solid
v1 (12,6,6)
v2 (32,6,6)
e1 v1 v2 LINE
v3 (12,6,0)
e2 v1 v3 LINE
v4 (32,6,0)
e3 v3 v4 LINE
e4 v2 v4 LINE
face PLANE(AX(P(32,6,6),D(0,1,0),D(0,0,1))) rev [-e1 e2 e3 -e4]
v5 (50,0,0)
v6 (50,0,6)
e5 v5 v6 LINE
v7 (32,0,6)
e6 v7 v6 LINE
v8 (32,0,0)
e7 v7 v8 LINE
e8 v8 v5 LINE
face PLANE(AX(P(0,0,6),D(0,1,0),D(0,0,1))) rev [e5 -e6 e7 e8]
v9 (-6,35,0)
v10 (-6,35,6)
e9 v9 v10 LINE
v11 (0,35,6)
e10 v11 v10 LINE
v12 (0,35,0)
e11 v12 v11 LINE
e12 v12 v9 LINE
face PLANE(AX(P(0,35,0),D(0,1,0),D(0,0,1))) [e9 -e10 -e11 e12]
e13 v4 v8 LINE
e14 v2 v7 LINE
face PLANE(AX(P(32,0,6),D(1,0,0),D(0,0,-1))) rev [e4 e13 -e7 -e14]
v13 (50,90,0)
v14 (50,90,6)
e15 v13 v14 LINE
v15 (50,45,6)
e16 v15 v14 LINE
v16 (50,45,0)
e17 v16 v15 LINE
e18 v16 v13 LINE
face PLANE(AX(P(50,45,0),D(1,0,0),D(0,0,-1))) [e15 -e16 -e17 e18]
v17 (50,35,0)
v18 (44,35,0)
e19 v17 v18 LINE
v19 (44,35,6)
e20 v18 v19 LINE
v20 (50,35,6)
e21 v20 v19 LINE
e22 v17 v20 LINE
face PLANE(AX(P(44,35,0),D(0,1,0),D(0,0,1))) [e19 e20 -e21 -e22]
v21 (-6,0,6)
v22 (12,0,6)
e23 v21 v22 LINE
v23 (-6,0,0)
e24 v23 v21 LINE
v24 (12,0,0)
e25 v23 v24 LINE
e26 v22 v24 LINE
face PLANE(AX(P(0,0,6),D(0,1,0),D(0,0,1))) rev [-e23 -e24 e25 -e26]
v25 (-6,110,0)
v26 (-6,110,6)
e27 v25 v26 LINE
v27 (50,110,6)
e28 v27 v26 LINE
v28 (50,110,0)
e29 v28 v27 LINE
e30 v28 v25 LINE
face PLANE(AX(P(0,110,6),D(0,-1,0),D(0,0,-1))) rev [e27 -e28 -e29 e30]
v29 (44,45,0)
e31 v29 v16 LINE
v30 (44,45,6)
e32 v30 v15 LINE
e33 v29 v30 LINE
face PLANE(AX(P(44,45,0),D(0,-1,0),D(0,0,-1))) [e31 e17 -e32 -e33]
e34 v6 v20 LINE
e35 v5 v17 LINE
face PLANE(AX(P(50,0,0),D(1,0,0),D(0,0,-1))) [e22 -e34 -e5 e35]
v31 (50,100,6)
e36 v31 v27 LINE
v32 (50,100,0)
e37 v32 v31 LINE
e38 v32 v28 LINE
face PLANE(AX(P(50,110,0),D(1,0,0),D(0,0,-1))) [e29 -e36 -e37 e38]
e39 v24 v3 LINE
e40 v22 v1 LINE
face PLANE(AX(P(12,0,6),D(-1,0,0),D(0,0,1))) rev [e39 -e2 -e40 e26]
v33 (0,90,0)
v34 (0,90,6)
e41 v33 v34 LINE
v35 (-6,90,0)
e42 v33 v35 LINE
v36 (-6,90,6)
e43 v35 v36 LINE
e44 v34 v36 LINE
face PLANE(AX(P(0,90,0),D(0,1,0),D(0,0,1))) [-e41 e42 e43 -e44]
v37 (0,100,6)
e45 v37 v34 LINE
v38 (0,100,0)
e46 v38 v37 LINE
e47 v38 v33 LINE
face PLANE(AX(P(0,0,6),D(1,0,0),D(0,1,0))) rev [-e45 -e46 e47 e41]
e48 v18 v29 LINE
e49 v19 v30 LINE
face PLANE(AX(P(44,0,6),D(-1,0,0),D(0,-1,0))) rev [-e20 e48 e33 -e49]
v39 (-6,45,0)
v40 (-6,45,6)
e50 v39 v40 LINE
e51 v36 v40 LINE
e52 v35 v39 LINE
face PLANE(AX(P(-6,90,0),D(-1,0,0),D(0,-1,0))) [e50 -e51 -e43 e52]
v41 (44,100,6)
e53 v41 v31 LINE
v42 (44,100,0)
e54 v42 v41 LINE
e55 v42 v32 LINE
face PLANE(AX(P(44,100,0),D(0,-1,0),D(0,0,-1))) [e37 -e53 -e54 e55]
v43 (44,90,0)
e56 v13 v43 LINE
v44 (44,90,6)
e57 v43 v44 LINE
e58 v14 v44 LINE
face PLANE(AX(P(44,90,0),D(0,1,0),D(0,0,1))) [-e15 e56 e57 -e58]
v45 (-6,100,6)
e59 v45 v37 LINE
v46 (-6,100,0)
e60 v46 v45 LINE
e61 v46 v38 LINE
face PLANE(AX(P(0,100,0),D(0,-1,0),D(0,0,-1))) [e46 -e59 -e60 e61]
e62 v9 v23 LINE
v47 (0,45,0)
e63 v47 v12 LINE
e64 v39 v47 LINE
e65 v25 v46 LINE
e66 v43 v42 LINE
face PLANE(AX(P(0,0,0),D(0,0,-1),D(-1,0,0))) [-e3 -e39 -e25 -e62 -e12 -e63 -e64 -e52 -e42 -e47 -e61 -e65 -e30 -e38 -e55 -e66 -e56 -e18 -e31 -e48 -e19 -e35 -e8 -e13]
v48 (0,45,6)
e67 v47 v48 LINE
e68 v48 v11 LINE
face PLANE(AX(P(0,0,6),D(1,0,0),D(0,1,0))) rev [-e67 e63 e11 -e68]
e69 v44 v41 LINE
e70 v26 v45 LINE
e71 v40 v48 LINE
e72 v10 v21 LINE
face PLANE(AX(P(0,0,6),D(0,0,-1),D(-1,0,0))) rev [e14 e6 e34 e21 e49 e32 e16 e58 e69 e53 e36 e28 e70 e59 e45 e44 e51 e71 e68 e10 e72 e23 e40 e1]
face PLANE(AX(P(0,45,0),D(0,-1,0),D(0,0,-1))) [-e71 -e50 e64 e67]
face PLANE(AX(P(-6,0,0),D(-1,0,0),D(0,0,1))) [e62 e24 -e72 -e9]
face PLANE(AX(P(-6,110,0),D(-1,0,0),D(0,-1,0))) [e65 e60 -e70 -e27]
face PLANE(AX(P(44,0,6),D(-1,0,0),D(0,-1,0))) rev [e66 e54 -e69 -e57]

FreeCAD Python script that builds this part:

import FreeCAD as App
import Part
import Sketcher
Q = App.Units.Quantity

doc = App.newDocument("Part")
body = doc.addObject("PartDesign::Body", "Body")

# Sketch on XY plane
sketch1 = body.newObject("Sketcher::SketchObject", "Sketch")
sketch1.AttachmentSupport = (doc.getObject("XY_Plane"), [""])
sketch1.MapMode = "FlatFace"
sketch1.addGeometry([
    Part.LineSegment(App.Vector(0, 110, 0), App.Vector(0, 0, 0)),
    Part.LineSegment(App.Vector(0, 0, 0), App.Vector(44, 0, 0)),
    Part.LineSegment(App.Vector(44, 0, 0), App.Vector(44, 110, 0)),
    Part.LineSegment(App.Vector(44, 110, 0), App.Vector(0, 110, 0)),
], False)
sketch1.addConstraint([
    Sketcher.Constraint("Coincident", 0, 2, 1, 1),
    Sketcher.Constraint("Coincident", 1, 2, 2, 1),
    Sketcher.Constraint("Coincident", 2, 2, 3, 1),
    Sketcher.Constraint("Coincident", 3, 2, 0, 1),
    Sketcher.Constraint("Vertical", 0),
    Sketcher.Constraint("Horizontal", 1),
    Sketcher.Constraint("Vertical", 2),
    Sketcher.Constraint("Horizontal", 3),
    Sketcher.Constraint("Coincident", 0, 2, -1, 1),
    Sketcher.Constraint("DistanceX", 1, 1, 1, 2, Q("44 mm")),
    Sketcher.Constraint("DistanceY", 0, 2, 0, 1, Q("110 mm")),
])
pad1 = body.newObject("PartDesign::Pad", "Pad")
pad1.Profile = sketch1
pad1.Length = 6

# Sketch on XY plane
sketch2 = body.newObject("Sketcher::SketchObject", "Sketch001")
sketch2.AttachmentSupport = (doc.getObject("XY_Plane"), [""])
sketch2.MapMode = "FlatFace"
sketch2.AttachmentOffset = App.Placement(App.Vector(0, 0, 6), App.Rotation())
sketch2.addGeometry([
    Part.LineSegment(App.Vector(-6, 110, 0), App.Vector(-6, 100, 0)),  # 0
    Part.LineSegment(App.Vector(-6, 100, 0), App.Vector(0, 100, 0)),  # 1
    Part.LineSegment(App.Vector(0, 100, 0), App.Vector(0, 110, 0)),  # 2
    Part.LineSegment(App.Vector(0, 110, 0), App.Vector(-6, 110, 0)),  # 3
    Part.LineSegment(App.Vector(-6, 90, 0), App.Vector(-6, 45, 0)),  # 4
    Part.LineSegment(App.Vector(-6, 45, 0), App.Vector(0, 45, 0)),  # 5
    Part.LineSegment(App.Vector(0, 45, 0), App.Vector(0, 90, 0)),  # 6
    Part.LineSegment(App.Vector(0, 90, 0), App.Vector(-6, 90, 0)),  # 7
    Part.LineSegment(App.Vector(-6, 35, 0), App.Vector(-6, 0, 0)),  # 8
    Part.LineSegment(App.Vector(-6, 0, 0), App.Vector(0, 0, 0)),  # 9
    Part.LineSegment(App.Vector(0, 0, 0), App.Vector(0, 35, 0)),  # 10
    Part.LineSegment(App.Vector(0, 35, 0), App.Vector(-6, 35, 0)),  # 11
    Part.LineSegment(App.Vector(44, 35, 0), App.Vector(44, 0, 0)),  # 12
    Part.LineSegment(App.Vector(44, 0, 0), App.Vector(50, 0, 0)),  # 13
    Part.LineSegment(App.Vector(50, 0, 0), App.Vector(50, 35, 0)),  # 14
    Part.LineSegment(App.Vector(50, 35, 0), App.Vector(44, 35, 0)),  # 15
    Part.LineSegment(App.Vector(44, 90, 0), App.Vector(44, 45, 0)),  # 16
    Part.LineSegment(App.Vector(44, 45, 0), App.Vector(50, 45, 0)),  # 17
    Part.LineSegment(App.Vector(50, 45, 0), App.Vector(50, 90, 0)),  # 18
    Part.LineSegment(App.Vector(50, 90, 0), App.Vector(44, 90, 0)),  # 19
    Part.LineSegment(App.Vector(44, 110, 0), App.Vector(44, 100, 0)),  # 20
    Part.LineSegment(App.Vector(44, 100, 0), App.Vector(50, 100, 0)),  # 21
    Part.LineSegment(App.Vector(50, 100, 0), App.Vector(50, 110, 0)),  # 22
    Part.LineSegment(App.Vector(50, 110, 0), App.Vector(44, 110, 0)),  # 23
], False)
sketch2.addConstraint([
    Sketcher.Constraint("Coincident", 0, 2, 1, 1),
    Sketcher.Constraint("Coincident", 1, 2, 2, 1),
    Sketcher.Constraint("Coincident", 2, 2, 3, 1),
    Sketcher.Constraint("Coincident", 3, 2, 0, 1),
    Sketcher.Constraint("Coincident", 4, 2, 5, 1),
    Sketcher.Constraint("Coincident", 5, 2, 6, 1),
    Sketcher.Constraint("Coincident", 6, 2, 7, 1),
    Sketcher.Constraint("Coincident", 7, 2, 4, 1),
    Sketcher.Constraint("Coincident", 8, 2, 9, 1),
    Sketcher.Constraint("Coincident", 9, 2, 10, 1),
    Sketcher.Constraint("Coincident", 10, 2, 11, 1),
    Sketcher.Constraint("Coincident", 11, 2, 8, 1),
    Sketcher.Constraint("Coincident", 12, 2, 13, 1),
    Sketcher.Constraint("Coincident", 13, 2, 14, 1),
    Sketcher.Constraint("Coincident", 14, 2, 15, 1),
    Sketcher.Constraint("Coincident", 15, 2, 12, 1),
    Sketcher.Constraint("Coincident", 16, 2, 17, 1),
    Sketcher.Constraint("Coincident", 17, 2, 18, 1),
    Sketcher.Constraint("Coincident", 18, 2, 19, 1),
    Sketcher.Constraint("Coincident", 19, 2, 16, 1),
    Sketcher.Constraint("Coincident", 20, 2, 21, 1),
    Sketcher.Constraint("Coincident", 21, 2, 22, 1),
    Sketcher.Constraint("Coincident", 22, 2, 23, 1),
    Sketcher.Constraint("Coincident", 23, 2, 20, 1),
    Sketcher.Constraint("Vertical", 0),
    Sketcher.Constraint("Horizontal", 1),
    Sketcher.Constraint("Vertical", 2),
    Sketcher.Constraint("Horizontal", 3),
    Sketcher.Constraint("Vertical", 4),
    Sketcher.Constraint("Horizontal", 5),
    Sketcher.Constraint("Vertical", 6),
    Sketcher.Constraint("Horizontal", 7),
    Sketcher.Constraint("Vertical", 8),
    Sketcher.Constraint("Horizontal", 9),
    Sketcher.Constraint("Vertical", 10),
    Sketcher.Constraint("Horizontal", 11),
    Sketcher.Constraint("Vertical", 12),
    Sketcher.Constraint("Horizontal", 13),
    Sketcher.Constraint("Vertical", 14),
    Sketcher.Constraint("Horizontal", 15),
    Sketcher.Constraint("Vertical", 16),
    Sketcher.Constraint("Horizontal", 17),
    Sketcher.Constraint("Vertical", 18),
    Sketcher.Constraint("Horizontal", 19),
    Sketcher.Constraint("Vertical", 20),
    Sketcher.Constraint("Horizontal", 21),
    Sketcher.Constraint("Vertical", 22),
    Sketcher.Constraint("Horizontal", 23),
    Sketcher.Constraint("Coincident", 9, 2, -1, 1),
    Sketcher.Constraint("PointOnObject", 1, 2, -2),
    Sketcher.Constraint("PointOnObject", 5, 2, -2),
    Sketcher.Constraint("PointOnObject", 12, 2, -1),
    Sketcher.Constraint("Horizontal", 11, 2, 14, 2),
    Sketcher.Constraint("Horizontal", 5, 2, 16, 2),
    Sketcher.Constraint("Horizontal", 7, 2, 18, 2),
    Sketcher.Constraint("Horizontal", 1, 2, 20, 2),
    Sketcher.Constraint("Horizontal", 3, 2, 22, 2),
    Sketcher.Constraint("Vertical", 3, 2, 4, 2),
    Sketcher.Constraint("Vertical", 7, 2, 8, 2),
    Sketcher.Constraint("Vertical", 15, 2, 16, 2),
    Sketcher.Constraint("Vertical", 14, 2, 17, 2),
    Sketcher.Constraint("Vertical", 19, 2, 20, 2),
    Sketcher.Constraint("Vertical", 18, 2, 21, 2),
    Sketcher.Constraint("Equal", 11, 13),
    Sketcher.Constraint("DistanceX", 1, 1, 1, 2, Q("6 mm")),
    Sketcher.Constraint("DistanceY", 0, 2, 0, 1, Q("10 mm")),
    Sketcher.Constraint("DistanceY", 4, 2, 4, 1, Q("45 mm")),
    Sketcher.Constraint("DistanceY", 8, 2, 8, 1, Q("35 mm")),
    Sketcher.Constraint("DistanceY", -1, 1, 0, 2, Q("100 mm")),
    Sketcher.Constraint("DistanceY", -1, 1, 4, 2, Q("45 mm")),
    Sketcher.Constraint("DistanceX", -1, 1, 12, 2, Q("44 mm")),
])
pad2 = body.newObject("PartDesign::Pad", "Pad001")
pad2.Profile = sketch2
pad2.Length = 6
pad2.Reversed = True

# Sketch on XY plane
sketch3 = body.newObject("Sketcher::SketchObject", "Sketch002")
sketch3.AttachmentSupport = (doc.getObject("XY_Plane"), [""])
sketch3.MapMode = "FlatFace"
sketch3.addGeometry([
    Part.LineSegment(App.Vector(32, 6, 0), App.Vector(32, 0, 0)),
    Part.LineSegment(App.Vector(32, 0, 0), App.Vector(12, 0, 0)),
    Part.LineSegment(App.Vector(12, 0, 0), App.Vector(12, 6, 0)),
    Part.LineSegment(App.Vector(12, 6, 0), App.Vector(32, 6, 0)),
], False)
sketch3.addConstraint([
    Sketcher.Constraint("Coincident", 0, 2, 1, 1),
    Sketcher.Constraint("Coincident", 1, 2, 2, 1),
    Sketcher.Constraint("Coincident", 2, 2, 3, 1),
    Sketcher.Constraint("Coincident", 3, 2, 0, 1),
    Sketcher.Constraint("Vertical", 0),
    Sketcher.Constraint("Horizontal", 1),
    Sketcher.Constraint("Vertical", 2),
    Sketcher.Constraint("Horizontal", 3),
    Sketcher.Constraint("PointOnObject", 0, 2, -1),
    Sketcher.Constraint("DistanceX", 1, 2, 1, 1, Q("20 mm")),
    Sketcher.Constraint("DistanceY", 0, 2, 0, 1, Q("6 mm")),
    Sketcher.Constraint("DistanceX", -1, 1, 0, 2, Q("32 mm")),
])
pocket1 = body.newObject("PartDesign::Pocket", "Pocket")
pocket1.Profile = sketch3
pocket1.Length = 6
pocket1.Reversed = True

doc.recompute()
